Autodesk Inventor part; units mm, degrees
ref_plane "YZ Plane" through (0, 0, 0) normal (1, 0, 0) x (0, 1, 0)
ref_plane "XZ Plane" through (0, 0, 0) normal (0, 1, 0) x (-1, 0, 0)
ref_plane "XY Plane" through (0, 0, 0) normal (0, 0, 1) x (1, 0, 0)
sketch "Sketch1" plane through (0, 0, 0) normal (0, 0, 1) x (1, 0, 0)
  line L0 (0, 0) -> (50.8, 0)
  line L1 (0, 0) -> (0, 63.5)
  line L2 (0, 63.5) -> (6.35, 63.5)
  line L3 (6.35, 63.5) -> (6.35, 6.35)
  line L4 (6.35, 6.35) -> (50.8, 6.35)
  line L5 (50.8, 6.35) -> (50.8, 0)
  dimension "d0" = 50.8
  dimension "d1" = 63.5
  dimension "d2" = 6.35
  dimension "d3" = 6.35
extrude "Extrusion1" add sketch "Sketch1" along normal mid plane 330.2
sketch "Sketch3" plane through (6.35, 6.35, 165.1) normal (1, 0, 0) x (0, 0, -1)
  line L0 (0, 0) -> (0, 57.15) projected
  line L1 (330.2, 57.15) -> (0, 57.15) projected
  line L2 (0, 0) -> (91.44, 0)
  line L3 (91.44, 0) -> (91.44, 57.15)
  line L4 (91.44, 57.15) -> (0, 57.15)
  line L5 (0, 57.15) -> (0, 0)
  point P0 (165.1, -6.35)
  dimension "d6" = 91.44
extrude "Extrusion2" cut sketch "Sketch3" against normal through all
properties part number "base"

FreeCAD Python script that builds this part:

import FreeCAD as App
import Part
import Sketcher
Q = App.Units.Quantity

doc = App.newDocument("Part")
body = doc.addObject("PartDesign::Body", "Body")

# Sketch on XY plane
sketch1 = body.newObject("Sketcher::SketchObject", "Sketch")
sketch1.AttachmentSupport = (doc.getObject("XY_Plane"), [""])
sketch1.MapMode = "FlatFace"
sketch1.addGeometry([
    Part.LineSegment(App.Vector(0, 63.5, 0), App.Vector(0, 0, 0)),  # 0
    Part.LineSegment(App.Vector(0, 0, 0), App.Vector(50.8, 0, 0)),  # 1
    Part.LineSegment(App.Vector(50.8, 0, 0), App.Vector(50.8, 6.35, 0)),  # 2
    Part.LineSegment(App.Vector(50.8, 6.35, 0), App.Vector(6.35, 6.35, 0)),  # 3
    Part.LineSegment(App.Vector(6.35, 6.35, 0), App.Vector(6.35, 63.5, 0)),  # 4
    Part.LineSegment(App.Vector(6.35, 63.5, 0), App.Vector(0, 63.5, 0)),  # 5
], False)
sketch1.addConstraint([
    Sketcher.Constraint("Coincident", 0, 2, 1, 1),
    Sketcher.Constraint("Coincident", 1, 2, 2, 1),
    Sketcher.Constraint("Coincident", 2, 2, 3, 1),
    Sketcher.Constraint("Coincident", 3, 2, 4, 1),
    Sketcher.Constraint("Coincident", 4, 2, 5, 1),
    Sketcher.Constraint("Coincident", 5, 2, 0, 1),
    Sketcher.Constraint("Vertical", 0),
    Sketcher.Constraint("Horizontal", 1),
    Sketcher.Constraint("Vertical", 2),
    Sketcher.Constraint("Horizontal", 3),
    Sketcher.Constraint("Vertical", 4),
    Sketcher.Constraint("Horizontal", 5),
    Sketcher.Constraint("Coincident", 0, 2, -1, 1),
    Sketcher.Constraint("Equal", 5, 2),
    Sketcher.Constraint("DistanceX", 1, 1, 1, 2, Q("2 in")),
    Sketcher.Constraint("DistanceY", 0, 2, 0, 1, Q("2.5 in")),
    Sketcher.Constraint("DistanceX", 5, 2, 5, 1, Q("0.25 in")),
])
pad1 = body.newObject("PartDesign::Pad", "Pad")
pad1.Profile = sketch1
pad1.Length = Q("13 in")
pad1.Midplane = True

# Sketch on YZ plane
sketch2 = body.newObject("Sketcher::SketchObject", "Sketch001")
sketch2.AttachmentSupport = (doc.getObject("YZ_Plane"), [""])
sketch2.MapMode = "FlatFace"
sketch2.AttachmentOffset = App.Placement(App.Vector(0, 0, 0.25 * 25.4), App.Rotation())
sketch2.addGeometry([
    Part.LineSegment(App.Vector(63.5, 165.1, 0), App.Vector(6.35, 165.1, 0)),
    Part.LineSegment(App.Vector(6.35, 165.1, 0), App.Vector(6.35, 73.66, 0)),
    Part.LineSegment(App.Vector(6.35, 73.66, 0), App.Vector(63.5, 73.66, 0)),
    Part.LineSegment(App.Vector(63.5, 73.66, 0), App.Vector(63.5, 165.1, 0)),
], False)
sketch2.addConstraint([
    Sketcher.Constraint("Coincident", 0, 2, 1, 1),
    Sketcher.Constraint("Coincident", 1, 2, 2, 1),
    Sketcher.Constraint("Coincident", 2, 2, 3, 1),
    Sketcher.Constraint("Coincident", 3, 2, 0, 1),
    Sketcher.Constraint("Horizontal", 0),
    Sketcher.Constraint("Vertical", 1),
    Sketcher.Constraint("Horizontal", 2),
    Sketcher.Constraint("Vertical", 3),
    Sketcher.Constraint("DistanceY", 1, 2, 1, 1, Q("3.6 in")),
    Sketcher.Constraint("DistanceX", 0, 2, 0, 1, Q("2.25 in")),
    Sketcher.Constraint("DistanceY", -1, 1, 0, 2, Q("6.5 in")),
    Sketcher.Constraint("DistanceX", -1, 1, 2, 2, Q("2.5 in")),
])
pocket1 = body.newObject("PartDesign::Pocket", "Pocket")
pocket1.Profile = sketch2
pocket1.Type = "ThroughAll"

doc.recompute()
